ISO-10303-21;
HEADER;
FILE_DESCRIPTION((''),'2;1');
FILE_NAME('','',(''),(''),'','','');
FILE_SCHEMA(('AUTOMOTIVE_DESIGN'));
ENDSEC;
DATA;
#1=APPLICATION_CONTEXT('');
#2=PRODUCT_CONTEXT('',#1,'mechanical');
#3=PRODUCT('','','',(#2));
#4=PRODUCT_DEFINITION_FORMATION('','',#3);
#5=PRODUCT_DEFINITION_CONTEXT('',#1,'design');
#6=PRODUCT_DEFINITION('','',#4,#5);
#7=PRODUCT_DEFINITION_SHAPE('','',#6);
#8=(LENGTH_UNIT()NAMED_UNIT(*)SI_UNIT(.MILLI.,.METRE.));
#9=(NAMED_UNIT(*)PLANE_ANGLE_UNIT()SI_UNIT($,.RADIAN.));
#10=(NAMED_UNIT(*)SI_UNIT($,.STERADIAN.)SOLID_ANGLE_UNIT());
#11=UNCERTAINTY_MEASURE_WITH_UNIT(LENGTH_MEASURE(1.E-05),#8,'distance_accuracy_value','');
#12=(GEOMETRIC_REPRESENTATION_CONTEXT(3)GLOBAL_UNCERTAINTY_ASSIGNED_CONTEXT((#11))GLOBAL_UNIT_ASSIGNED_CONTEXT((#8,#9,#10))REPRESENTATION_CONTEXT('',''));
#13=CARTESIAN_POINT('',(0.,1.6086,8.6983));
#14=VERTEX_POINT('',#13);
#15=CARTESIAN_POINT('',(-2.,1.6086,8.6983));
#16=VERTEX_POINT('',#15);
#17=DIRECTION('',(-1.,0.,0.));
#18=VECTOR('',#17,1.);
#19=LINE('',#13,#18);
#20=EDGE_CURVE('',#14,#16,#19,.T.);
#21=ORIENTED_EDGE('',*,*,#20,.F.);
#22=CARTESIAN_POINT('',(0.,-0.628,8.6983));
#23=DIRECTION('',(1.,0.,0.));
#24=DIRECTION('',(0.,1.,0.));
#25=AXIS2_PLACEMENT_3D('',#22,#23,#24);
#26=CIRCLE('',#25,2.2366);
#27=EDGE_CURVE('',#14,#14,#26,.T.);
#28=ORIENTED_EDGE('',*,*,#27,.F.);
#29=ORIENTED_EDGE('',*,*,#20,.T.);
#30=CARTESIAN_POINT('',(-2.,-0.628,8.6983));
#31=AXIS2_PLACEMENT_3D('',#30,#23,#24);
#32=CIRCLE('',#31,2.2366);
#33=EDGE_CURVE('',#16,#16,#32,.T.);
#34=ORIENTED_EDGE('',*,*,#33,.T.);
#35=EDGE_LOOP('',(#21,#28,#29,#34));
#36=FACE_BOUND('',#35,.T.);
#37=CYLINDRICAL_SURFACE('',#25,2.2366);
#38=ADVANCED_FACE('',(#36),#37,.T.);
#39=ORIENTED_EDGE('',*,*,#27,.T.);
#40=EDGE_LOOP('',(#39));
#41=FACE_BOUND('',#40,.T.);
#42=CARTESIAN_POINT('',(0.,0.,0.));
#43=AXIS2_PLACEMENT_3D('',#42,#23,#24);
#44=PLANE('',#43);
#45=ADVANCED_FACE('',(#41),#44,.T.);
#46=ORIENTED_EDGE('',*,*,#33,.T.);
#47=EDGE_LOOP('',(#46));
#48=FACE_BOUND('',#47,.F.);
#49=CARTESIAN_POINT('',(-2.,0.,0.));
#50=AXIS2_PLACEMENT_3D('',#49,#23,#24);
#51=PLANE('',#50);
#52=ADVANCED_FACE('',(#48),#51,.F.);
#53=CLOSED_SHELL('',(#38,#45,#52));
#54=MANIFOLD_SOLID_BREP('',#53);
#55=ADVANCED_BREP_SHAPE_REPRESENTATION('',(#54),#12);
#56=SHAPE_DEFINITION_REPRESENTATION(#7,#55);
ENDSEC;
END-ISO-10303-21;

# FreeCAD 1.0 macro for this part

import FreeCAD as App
import Part
import Sketcher

doc = App.newDocument("Part")
body = doc.addObject("PartDesign::Body", "Body")

sketch1 = doc.addObject("Sketcher::SketchObject", "Sketch")
body.addObject(sketch1)
sketch1.AttachmentSupport = (doc.YZ_Plane, [""])
sketch1.MapMode = "FlatFace"
sketch1.addGeometry(Part.Circle(App.Vector(-0.6, 8.7, 0), App.Vector(0, 0, 1), 2.2), False)
sketch1.addConstraint(Sketcher.Constraint("Diameter", 0, 4.4732))
sketch1.addConstraint(Sketcher.Constraint("DistanceX", 0, 3, -1, 1, 0.628))
sketch1.addConstraint(Sketcher.Constraint("DistanceY", -1, 1, 0, 3, 8.6983))
pad1 = doc.addObject("PartDesign::Pad", "Pad")
body.addObject(pad1)
pad1.Profile = sketch1
pad1.Length = 2
pad1.Reversed = True

doc.recompute()
